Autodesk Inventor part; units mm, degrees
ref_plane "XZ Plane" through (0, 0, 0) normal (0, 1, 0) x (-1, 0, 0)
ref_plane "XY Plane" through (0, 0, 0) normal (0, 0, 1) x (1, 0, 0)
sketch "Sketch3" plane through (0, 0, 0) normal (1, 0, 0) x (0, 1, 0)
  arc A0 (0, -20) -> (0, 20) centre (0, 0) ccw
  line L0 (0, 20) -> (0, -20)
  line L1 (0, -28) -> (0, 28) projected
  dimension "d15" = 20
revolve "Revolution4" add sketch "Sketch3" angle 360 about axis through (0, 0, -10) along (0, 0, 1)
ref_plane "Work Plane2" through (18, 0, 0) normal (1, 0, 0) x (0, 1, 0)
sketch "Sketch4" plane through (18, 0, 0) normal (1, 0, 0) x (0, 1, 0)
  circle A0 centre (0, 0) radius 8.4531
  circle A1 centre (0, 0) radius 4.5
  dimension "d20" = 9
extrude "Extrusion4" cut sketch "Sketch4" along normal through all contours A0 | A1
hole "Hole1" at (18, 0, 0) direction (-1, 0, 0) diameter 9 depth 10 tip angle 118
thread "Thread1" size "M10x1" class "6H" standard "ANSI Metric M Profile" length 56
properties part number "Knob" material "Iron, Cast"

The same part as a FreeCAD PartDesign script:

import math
import FreeCAD as App
import Part
import Sketcher

V = App.Vector

doc = App.newDocument("Part")
body = doc.addObject("PartDesign::Body", "Body")

sketch1 = doc.addObject("Sketcher::SketchObject", "Sketch")
body.addObject(sketch1)
sketch1.AttachmentSupport = (doc.YZ_Plane, [""])
sketch1.MapMode = "FlatFace"
sketch1.addGeometry(Part.LineSegment(V(0, 20, 0), V(0, -20, 0)), False)
sketch1.addGeometry(Part.ArcOfCircle(Part.Circle(V(0, 0, 0), V(0, 0, 1), 20), math.radians(-90), math.radians(90)), False)
sketch1.addConstraint(Sketcher.Constraint("Coincident", 0, 1, 1, 2))
sketch1.addConstraint(Sketcher.Constraint("Coincident", 1, 1, 0, 2))
sketch1.addConstraint(Sketcher.Constraint("Vertical", 0))
sketch1.addConstraint(Sketcher.Constraint("Coincident", 1, 3, -1, 1))
sketch1.addConstraint(Sketcher.Constraint("PointOnObject", 0, 1, -2))
sketch1.addConstraint(Sketcher.Constraint("Radius", 1, 20.0))
revolution = doc.addObject("PartDesign::Revolution", "Revolution")
body.addObject(revolution)
revolution.Profile = sketch1
revolution.ReferenceAxis = (sketch1, ["V_Axis"])
revolution.Angle = 360

sketch2 = doc.addObject("Sketcher::SketchObject", "Sketch001")
body.addObject(sketch2)
sketch2.AttachmentSupport = (doc.YZ_Plane, [""])
sketch2.MapMode = "FlatFace"
sketch2.AttachmentOffset = App.Placement(V(0, 0, 18), App.Rotation())
sketch2.addGeometry(Part.Circle(V(0, 0, 0), V(0, 0, 1), 8), False)
sketch2.addConstraint(Sketcher.Constraint("Coincident", 0, 3, -1, 1))
sketch2.addConstraint(Sketcher.Constraint("Diameter", 0, 16.9062))
pocket1 = doc.addObject("PartDesign::Pocket", "Pocket")
body.addObject(pocket1)
pocket1.Profile = sketch2
pocket1.Type = "ThroughAll"
pocket1.Reversed = True

sketch3 = doc.addObject("Sketcher::SketchObject", "Sketch002")
body.addObject(sketch3)
sketch3.AttachmentSupport = (doc.YZ_Plane, [""])
sketch3.MapMode = "FlatFace"
sketch3.AttachmentOffset = App.Placement(V(0, 0, 18), App.Rotation())
sketch3.addGeometry(Part.Circle(V(0, 0, 0), V(0, 0, 1), 4.5), False)
sketch3.addConstraint(Sketcher.Constraint("Coincident", 0, 3, -1, 1))
sketch3.addConstraint(Sketcher.Constraint("Diameter", 0, 9.0))
doc.recompute()
hole = doc.addObject("PartDesign::Hole", "Hole")
body.addObject(hole)
hole.Profile = sketch3
hole.ThreadType = "None"
hole.Diameter = 9
hole.DepthType = "Dimension"
hole.Depth = 10
hole.DrillPoint = "Angled"
hole.DrillPointAngle = 118

doc.recompute()
